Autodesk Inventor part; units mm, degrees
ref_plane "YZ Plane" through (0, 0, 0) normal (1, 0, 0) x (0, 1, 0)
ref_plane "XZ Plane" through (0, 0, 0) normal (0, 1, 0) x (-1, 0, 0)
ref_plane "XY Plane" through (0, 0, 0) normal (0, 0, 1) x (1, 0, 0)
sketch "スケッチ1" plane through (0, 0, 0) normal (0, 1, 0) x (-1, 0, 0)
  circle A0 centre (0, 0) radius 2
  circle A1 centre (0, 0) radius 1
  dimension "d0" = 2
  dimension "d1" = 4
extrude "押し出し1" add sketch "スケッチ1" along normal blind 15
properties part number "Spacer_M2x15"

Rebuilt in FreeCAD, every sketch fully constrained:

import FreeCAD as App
import Part
import Sketcher
from FreeCAD import Vector

doc = App.newDocument("Part")
body = doc.addObject("PartDesign::Body", "Body")

sketch1 = body.newObject("Sketcher::SketchObject", "Sketch")
sketch1.AttachmentSupport = (doc.getObject("XZ_Plane"), [""])
sketch1.MapMode = "FlatFace"
sketch1.addGeometry(Part.Circle(Vector(0, 0, 0), Vector(0, 0, 1), 2), False)
sketch1.addGeometry(Part.Circle(Vector(0, 0, 0), Vector(0, 0, 1), 1), False)
sketch1.addConstraint(Sketcher.Constraint("Coincident", 0, 3, -1, 1))
sketch1.addConstraint(Sketcher.Constraint("Coincident", 1, 3, -1, 1))
sketch1.addConstraint(Sketcher.Constraint("Diameter", 0, 4.0))
sketch1.addConstraint(Sketcher.Constraint("Diameter", 1, 2.0))
pad1 = body.newObject("PartDesign::Pad", "Pad")
pad1.Profile = sketch1
pad1.Length = 15
pad1.Reversed = True

doc.recompute()
